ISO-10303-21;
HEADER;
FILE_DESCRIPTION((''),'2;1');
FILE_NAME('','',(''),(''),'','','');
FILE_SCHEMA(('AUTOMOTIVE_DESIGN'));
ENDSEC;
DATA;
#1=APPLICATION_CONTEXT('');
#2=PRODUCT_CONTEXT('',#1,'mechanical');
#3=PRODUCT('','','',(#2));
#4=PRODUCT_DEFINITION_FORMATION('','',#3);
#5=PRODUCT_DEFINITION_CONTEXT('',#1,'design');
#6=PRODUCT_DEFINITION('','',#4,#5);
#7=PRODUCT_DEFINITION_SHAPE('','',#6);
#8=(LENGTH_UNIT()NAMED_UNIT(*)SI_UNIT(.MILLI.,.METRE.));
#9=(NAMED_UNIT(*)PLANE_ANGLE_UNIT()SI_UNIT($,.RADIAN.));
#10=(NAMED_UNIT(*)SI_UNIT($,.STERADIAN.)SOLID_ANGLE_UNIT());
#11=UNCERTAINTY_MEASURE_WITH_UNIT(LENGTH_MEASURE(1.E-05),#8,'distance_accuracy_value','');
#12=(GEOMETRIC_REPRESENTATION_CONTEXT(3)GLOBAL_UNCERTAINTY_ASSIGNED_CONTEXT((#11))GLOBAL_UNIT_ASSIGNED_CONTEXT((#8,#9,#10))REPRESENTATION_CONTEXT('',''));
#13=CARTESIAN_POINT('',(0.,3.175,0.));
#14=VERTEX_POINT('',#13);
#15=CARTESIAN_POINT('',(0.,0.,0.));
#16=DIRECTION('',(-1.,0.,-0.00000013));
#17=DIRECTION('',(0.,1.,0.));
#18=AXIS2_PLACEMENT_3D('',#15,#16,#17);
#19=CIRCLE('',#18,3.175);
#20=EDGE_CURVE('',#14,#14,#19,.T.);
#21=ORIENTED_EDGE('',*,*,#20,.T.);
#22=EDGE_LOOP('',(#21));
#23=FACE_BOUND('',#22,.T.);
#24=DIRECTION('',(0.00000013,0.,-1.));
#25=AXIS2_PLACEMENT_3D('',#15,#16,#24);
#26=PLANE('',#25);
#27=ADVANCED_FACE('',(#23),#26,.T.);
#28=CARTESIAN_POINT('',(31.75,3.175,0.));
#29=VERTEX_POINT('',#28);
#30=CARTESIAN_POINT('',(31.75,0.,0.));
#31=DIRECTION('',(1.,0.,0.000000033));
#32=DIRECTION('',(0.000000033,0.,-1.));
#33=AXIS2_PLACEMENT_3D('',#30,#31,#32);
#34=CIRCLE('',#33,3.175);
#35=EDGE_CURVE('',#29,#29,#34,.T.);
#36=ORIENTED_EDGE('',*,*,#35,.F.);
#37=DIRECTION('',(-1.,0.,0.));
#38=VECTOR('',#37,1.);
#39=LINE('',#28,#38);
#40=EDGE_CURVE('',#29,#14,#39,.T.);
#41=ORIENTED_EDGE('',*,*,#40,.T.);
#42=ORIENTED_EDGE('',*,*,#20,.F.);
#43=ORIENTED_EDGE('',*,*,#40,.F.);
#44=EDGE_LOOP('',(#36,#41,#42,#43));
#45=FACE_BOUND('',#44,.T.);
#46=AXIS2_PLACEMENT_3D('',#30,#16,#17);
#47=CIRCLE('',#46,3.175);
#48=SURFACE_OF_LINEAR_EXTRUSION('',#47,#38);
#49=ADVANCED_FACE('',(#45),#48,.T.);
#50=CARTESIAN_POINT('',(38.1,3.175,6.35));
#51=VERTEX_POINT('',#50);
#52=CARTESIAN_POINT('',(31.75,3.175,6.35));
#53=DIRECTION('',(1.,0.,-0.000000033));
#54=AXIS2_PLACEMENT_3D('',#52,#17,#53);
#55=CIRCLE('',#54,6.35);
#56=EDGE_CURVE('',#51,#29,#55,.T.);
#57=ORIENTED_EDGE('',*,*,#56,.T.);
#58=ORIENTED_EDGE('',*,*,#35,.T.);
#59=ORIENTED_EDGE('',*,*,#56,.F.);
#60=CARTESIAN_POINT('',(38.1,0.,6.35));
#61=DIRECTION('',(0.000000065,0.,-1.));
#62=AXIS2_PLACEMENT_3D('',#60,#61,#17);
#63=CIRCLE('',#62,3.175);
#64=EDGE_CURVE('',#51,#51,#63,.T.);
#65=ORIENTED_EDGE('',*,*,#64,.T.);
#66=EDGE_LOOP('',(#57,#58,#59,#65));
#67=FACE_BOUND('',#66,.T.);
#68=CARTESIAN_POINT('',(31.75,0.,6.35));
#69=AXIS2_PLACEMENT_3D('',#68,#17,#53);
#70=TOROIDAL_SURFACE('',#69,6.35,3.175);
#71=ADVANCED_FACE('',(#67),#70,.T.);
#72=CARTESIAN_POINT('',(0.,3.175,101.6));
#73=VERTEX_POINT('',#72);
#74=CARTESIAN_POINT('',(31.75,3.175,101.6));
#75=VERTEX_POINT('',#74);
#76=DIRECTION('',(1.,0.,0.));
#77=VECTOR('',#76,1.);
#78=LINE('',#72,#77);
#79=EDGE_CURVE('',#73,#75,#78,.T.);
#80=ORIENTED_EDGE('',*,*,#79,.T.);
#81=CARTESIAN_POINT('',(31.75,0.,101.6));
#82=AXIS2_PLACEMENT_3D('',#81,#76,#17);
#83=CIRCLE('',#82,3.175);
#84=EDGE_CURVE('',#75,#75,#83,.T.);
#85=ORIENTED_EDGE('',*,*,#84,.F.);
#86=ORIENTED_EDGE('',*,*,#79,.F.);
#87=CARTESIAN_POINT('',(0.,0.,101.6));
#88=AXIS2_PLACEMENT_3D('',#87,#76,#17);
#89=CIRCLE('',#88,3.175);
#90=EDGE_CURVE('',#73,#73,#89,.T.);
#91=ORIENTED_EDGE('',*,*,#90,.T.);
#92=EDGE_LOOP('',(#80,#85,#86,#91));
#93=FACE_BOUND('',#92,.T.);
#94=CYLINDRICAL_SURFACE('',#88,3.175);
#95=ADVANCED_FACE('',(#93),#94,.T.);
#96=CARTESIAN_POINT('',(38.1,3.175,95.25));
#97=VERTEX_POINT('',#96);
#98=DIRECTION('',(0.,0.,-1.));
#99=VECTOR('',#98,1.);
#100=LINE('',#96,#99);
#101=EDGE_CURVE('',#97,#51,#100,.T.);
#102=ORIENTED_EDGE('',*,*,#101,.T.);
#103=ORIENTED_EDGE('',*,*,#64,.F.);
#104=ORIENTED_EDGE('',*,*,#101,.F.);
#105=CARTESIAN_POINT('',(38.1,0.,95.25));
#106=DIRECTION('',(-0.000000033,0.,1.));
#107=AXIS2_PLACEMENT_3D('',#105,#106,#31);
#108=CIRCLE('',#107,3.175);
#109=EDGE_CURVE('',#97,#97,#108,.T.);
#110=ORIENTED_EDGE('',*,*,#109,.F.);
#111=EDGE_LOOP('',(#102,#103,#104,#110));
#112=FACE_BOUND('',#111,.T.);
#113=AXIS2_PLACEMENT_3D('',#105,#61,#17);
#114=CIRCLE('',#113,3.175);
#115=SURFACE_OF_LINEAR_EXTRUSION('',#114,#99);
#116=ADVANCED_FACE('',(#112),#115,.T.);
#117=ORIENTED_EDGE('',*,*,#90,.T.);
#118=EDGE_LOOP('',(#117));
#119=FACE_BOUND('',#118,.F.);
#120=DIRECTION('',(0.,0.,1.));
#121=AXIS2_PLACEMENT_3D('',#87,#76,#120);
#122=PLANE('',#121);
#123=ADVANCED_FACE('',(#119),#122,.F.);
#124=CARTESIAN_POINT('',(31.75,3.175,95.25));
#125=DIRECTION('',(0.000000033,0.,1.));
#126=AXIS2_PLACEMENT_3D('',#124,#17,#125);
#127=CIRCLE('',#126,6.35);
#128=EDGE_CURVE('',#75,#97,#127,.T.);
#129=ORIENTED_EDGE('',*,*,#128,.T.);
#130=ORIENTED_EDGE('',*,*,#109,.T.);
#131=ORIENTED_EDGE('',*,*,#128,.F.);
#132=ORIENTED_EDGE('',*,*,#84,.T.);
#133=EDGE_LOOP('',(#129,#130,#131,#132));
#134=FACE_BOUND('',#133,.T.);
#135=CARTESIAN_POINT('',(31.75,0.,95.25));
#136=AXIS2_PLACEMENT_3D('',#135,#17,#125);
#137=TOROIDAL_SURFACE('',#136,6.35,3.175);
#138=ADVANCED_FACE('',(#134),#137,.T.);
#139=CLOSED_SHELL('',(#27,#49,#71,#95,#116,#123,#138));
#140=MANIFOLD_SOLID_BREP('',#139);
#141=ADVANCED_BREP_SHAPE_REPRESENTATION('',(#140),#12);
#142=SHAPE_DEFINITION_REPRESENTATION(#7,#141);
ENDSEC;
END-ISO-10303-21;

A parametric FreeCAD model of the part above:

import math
import FreeCAD as App
import Part
import Sketcher
from FreeCAD import Vector
Q = App.Units.Quantity

doc = App.newDocument("Part")
body = doc.addObject("PartDesign::Body", "Body")

# Sketch on YZ plane
sketch1 = doc.addObject("Sketcher::SketchObject", "Sketch")
body.addObject(sketch1)
sketch1.AttachmentSupport = (doc.YZ_Plane, [""])
sketch1.MapMode = "FlatFace"
sketch1.addGeometry(Part.Circle(Vector(0, 101.6, 0), Vector(0, 0, 1), 3.2), False)
sketch1.addConstraint([
    Sketcher.Constraint("PointOnObject", 0, 3, -2),
    Sketcher.Constraint("Diameter", 0, Q("0.25 in")),
    Sketcher.Constraint("DistanceY", -1, 1, 0, 3, Q("4 in")),
])

# Sketch on XZ plane
sketch2 = doc.addObject("Sketcher::SketchObject", "Sketch001")
body.addObject(sketch2)
sketch2.AttachmentSupport = (doc.XZ_Plane, [""])
sketch2.MapMode = "FlatFace"
sketch2.addGeometry([
    Part.LineSegment(Vector(0, 102, 0), Vector(32, 102, 0)),  # 0
    Part.ArcOfCircle(Part.Circle(Vector(32, 95, 0), Vector(0, 0, 1), 6), math.radians(0), math.radians(90)),  # 1
    Part.LineSegment(Vector(38, 95, 0), Vector(38, 6, 0)),  # 2
    Part.ArcOfCircle(Part.Circle(Vector(32, 6, 0), Vector(0, 0, 1), 6), math.radians(-90), math.radians(0)),  # 3
    Part.LineSegment(Vector(32, 0, 0), Vector(0, 0, 0)),  # 4
], False)
sketch2.addConstraint([
    Sketcher.Constraint("Tangent", 0, 2, 1, 2),
    Sketcher.Constraint("Tangent", 1, 1, 2, 1),
    Sketcher.Constraint("Tangent", 2, 2, 3, 2),
    Sketcher.Constraint("Tangent", 3, 1, 4, 1),
    Sketcher.Constraint("Horizontal", 0),
    Sketcher.Constraint("Vertical", 2),
    Sketcher.Constraint("Horizontal", 4),
    Sketcher.Constraint("Coincident", 4, 2, -1, 1),
    Sketcher.Constraint("Equal", 1, 3),
    Sketcher.Constraint("PointOnObject", 0, 1, -2),
    Sketcher.Constraint("Radius", 1, Q("0.25 in")),
    Sketcher.Constraint("DistanceY", 2, 2, 2, 1, Q("3.5 in")),
    Sketcher.Constraint("DistanceX", 0, 1, 0, 2, Q("1.25 in")),
])
doc.recompute()

additivepipe = doc.addObject("PartDesign::AdditivePipe", "AdditivePipe")
body.addObject(additivepipe)
additivepipe.Profile = sketch1
additivepipe.Spine = (sketch2, ["Edge1", "Edge2", "Edge3", "Edge4", "Edge5"])

doc.recompute()
